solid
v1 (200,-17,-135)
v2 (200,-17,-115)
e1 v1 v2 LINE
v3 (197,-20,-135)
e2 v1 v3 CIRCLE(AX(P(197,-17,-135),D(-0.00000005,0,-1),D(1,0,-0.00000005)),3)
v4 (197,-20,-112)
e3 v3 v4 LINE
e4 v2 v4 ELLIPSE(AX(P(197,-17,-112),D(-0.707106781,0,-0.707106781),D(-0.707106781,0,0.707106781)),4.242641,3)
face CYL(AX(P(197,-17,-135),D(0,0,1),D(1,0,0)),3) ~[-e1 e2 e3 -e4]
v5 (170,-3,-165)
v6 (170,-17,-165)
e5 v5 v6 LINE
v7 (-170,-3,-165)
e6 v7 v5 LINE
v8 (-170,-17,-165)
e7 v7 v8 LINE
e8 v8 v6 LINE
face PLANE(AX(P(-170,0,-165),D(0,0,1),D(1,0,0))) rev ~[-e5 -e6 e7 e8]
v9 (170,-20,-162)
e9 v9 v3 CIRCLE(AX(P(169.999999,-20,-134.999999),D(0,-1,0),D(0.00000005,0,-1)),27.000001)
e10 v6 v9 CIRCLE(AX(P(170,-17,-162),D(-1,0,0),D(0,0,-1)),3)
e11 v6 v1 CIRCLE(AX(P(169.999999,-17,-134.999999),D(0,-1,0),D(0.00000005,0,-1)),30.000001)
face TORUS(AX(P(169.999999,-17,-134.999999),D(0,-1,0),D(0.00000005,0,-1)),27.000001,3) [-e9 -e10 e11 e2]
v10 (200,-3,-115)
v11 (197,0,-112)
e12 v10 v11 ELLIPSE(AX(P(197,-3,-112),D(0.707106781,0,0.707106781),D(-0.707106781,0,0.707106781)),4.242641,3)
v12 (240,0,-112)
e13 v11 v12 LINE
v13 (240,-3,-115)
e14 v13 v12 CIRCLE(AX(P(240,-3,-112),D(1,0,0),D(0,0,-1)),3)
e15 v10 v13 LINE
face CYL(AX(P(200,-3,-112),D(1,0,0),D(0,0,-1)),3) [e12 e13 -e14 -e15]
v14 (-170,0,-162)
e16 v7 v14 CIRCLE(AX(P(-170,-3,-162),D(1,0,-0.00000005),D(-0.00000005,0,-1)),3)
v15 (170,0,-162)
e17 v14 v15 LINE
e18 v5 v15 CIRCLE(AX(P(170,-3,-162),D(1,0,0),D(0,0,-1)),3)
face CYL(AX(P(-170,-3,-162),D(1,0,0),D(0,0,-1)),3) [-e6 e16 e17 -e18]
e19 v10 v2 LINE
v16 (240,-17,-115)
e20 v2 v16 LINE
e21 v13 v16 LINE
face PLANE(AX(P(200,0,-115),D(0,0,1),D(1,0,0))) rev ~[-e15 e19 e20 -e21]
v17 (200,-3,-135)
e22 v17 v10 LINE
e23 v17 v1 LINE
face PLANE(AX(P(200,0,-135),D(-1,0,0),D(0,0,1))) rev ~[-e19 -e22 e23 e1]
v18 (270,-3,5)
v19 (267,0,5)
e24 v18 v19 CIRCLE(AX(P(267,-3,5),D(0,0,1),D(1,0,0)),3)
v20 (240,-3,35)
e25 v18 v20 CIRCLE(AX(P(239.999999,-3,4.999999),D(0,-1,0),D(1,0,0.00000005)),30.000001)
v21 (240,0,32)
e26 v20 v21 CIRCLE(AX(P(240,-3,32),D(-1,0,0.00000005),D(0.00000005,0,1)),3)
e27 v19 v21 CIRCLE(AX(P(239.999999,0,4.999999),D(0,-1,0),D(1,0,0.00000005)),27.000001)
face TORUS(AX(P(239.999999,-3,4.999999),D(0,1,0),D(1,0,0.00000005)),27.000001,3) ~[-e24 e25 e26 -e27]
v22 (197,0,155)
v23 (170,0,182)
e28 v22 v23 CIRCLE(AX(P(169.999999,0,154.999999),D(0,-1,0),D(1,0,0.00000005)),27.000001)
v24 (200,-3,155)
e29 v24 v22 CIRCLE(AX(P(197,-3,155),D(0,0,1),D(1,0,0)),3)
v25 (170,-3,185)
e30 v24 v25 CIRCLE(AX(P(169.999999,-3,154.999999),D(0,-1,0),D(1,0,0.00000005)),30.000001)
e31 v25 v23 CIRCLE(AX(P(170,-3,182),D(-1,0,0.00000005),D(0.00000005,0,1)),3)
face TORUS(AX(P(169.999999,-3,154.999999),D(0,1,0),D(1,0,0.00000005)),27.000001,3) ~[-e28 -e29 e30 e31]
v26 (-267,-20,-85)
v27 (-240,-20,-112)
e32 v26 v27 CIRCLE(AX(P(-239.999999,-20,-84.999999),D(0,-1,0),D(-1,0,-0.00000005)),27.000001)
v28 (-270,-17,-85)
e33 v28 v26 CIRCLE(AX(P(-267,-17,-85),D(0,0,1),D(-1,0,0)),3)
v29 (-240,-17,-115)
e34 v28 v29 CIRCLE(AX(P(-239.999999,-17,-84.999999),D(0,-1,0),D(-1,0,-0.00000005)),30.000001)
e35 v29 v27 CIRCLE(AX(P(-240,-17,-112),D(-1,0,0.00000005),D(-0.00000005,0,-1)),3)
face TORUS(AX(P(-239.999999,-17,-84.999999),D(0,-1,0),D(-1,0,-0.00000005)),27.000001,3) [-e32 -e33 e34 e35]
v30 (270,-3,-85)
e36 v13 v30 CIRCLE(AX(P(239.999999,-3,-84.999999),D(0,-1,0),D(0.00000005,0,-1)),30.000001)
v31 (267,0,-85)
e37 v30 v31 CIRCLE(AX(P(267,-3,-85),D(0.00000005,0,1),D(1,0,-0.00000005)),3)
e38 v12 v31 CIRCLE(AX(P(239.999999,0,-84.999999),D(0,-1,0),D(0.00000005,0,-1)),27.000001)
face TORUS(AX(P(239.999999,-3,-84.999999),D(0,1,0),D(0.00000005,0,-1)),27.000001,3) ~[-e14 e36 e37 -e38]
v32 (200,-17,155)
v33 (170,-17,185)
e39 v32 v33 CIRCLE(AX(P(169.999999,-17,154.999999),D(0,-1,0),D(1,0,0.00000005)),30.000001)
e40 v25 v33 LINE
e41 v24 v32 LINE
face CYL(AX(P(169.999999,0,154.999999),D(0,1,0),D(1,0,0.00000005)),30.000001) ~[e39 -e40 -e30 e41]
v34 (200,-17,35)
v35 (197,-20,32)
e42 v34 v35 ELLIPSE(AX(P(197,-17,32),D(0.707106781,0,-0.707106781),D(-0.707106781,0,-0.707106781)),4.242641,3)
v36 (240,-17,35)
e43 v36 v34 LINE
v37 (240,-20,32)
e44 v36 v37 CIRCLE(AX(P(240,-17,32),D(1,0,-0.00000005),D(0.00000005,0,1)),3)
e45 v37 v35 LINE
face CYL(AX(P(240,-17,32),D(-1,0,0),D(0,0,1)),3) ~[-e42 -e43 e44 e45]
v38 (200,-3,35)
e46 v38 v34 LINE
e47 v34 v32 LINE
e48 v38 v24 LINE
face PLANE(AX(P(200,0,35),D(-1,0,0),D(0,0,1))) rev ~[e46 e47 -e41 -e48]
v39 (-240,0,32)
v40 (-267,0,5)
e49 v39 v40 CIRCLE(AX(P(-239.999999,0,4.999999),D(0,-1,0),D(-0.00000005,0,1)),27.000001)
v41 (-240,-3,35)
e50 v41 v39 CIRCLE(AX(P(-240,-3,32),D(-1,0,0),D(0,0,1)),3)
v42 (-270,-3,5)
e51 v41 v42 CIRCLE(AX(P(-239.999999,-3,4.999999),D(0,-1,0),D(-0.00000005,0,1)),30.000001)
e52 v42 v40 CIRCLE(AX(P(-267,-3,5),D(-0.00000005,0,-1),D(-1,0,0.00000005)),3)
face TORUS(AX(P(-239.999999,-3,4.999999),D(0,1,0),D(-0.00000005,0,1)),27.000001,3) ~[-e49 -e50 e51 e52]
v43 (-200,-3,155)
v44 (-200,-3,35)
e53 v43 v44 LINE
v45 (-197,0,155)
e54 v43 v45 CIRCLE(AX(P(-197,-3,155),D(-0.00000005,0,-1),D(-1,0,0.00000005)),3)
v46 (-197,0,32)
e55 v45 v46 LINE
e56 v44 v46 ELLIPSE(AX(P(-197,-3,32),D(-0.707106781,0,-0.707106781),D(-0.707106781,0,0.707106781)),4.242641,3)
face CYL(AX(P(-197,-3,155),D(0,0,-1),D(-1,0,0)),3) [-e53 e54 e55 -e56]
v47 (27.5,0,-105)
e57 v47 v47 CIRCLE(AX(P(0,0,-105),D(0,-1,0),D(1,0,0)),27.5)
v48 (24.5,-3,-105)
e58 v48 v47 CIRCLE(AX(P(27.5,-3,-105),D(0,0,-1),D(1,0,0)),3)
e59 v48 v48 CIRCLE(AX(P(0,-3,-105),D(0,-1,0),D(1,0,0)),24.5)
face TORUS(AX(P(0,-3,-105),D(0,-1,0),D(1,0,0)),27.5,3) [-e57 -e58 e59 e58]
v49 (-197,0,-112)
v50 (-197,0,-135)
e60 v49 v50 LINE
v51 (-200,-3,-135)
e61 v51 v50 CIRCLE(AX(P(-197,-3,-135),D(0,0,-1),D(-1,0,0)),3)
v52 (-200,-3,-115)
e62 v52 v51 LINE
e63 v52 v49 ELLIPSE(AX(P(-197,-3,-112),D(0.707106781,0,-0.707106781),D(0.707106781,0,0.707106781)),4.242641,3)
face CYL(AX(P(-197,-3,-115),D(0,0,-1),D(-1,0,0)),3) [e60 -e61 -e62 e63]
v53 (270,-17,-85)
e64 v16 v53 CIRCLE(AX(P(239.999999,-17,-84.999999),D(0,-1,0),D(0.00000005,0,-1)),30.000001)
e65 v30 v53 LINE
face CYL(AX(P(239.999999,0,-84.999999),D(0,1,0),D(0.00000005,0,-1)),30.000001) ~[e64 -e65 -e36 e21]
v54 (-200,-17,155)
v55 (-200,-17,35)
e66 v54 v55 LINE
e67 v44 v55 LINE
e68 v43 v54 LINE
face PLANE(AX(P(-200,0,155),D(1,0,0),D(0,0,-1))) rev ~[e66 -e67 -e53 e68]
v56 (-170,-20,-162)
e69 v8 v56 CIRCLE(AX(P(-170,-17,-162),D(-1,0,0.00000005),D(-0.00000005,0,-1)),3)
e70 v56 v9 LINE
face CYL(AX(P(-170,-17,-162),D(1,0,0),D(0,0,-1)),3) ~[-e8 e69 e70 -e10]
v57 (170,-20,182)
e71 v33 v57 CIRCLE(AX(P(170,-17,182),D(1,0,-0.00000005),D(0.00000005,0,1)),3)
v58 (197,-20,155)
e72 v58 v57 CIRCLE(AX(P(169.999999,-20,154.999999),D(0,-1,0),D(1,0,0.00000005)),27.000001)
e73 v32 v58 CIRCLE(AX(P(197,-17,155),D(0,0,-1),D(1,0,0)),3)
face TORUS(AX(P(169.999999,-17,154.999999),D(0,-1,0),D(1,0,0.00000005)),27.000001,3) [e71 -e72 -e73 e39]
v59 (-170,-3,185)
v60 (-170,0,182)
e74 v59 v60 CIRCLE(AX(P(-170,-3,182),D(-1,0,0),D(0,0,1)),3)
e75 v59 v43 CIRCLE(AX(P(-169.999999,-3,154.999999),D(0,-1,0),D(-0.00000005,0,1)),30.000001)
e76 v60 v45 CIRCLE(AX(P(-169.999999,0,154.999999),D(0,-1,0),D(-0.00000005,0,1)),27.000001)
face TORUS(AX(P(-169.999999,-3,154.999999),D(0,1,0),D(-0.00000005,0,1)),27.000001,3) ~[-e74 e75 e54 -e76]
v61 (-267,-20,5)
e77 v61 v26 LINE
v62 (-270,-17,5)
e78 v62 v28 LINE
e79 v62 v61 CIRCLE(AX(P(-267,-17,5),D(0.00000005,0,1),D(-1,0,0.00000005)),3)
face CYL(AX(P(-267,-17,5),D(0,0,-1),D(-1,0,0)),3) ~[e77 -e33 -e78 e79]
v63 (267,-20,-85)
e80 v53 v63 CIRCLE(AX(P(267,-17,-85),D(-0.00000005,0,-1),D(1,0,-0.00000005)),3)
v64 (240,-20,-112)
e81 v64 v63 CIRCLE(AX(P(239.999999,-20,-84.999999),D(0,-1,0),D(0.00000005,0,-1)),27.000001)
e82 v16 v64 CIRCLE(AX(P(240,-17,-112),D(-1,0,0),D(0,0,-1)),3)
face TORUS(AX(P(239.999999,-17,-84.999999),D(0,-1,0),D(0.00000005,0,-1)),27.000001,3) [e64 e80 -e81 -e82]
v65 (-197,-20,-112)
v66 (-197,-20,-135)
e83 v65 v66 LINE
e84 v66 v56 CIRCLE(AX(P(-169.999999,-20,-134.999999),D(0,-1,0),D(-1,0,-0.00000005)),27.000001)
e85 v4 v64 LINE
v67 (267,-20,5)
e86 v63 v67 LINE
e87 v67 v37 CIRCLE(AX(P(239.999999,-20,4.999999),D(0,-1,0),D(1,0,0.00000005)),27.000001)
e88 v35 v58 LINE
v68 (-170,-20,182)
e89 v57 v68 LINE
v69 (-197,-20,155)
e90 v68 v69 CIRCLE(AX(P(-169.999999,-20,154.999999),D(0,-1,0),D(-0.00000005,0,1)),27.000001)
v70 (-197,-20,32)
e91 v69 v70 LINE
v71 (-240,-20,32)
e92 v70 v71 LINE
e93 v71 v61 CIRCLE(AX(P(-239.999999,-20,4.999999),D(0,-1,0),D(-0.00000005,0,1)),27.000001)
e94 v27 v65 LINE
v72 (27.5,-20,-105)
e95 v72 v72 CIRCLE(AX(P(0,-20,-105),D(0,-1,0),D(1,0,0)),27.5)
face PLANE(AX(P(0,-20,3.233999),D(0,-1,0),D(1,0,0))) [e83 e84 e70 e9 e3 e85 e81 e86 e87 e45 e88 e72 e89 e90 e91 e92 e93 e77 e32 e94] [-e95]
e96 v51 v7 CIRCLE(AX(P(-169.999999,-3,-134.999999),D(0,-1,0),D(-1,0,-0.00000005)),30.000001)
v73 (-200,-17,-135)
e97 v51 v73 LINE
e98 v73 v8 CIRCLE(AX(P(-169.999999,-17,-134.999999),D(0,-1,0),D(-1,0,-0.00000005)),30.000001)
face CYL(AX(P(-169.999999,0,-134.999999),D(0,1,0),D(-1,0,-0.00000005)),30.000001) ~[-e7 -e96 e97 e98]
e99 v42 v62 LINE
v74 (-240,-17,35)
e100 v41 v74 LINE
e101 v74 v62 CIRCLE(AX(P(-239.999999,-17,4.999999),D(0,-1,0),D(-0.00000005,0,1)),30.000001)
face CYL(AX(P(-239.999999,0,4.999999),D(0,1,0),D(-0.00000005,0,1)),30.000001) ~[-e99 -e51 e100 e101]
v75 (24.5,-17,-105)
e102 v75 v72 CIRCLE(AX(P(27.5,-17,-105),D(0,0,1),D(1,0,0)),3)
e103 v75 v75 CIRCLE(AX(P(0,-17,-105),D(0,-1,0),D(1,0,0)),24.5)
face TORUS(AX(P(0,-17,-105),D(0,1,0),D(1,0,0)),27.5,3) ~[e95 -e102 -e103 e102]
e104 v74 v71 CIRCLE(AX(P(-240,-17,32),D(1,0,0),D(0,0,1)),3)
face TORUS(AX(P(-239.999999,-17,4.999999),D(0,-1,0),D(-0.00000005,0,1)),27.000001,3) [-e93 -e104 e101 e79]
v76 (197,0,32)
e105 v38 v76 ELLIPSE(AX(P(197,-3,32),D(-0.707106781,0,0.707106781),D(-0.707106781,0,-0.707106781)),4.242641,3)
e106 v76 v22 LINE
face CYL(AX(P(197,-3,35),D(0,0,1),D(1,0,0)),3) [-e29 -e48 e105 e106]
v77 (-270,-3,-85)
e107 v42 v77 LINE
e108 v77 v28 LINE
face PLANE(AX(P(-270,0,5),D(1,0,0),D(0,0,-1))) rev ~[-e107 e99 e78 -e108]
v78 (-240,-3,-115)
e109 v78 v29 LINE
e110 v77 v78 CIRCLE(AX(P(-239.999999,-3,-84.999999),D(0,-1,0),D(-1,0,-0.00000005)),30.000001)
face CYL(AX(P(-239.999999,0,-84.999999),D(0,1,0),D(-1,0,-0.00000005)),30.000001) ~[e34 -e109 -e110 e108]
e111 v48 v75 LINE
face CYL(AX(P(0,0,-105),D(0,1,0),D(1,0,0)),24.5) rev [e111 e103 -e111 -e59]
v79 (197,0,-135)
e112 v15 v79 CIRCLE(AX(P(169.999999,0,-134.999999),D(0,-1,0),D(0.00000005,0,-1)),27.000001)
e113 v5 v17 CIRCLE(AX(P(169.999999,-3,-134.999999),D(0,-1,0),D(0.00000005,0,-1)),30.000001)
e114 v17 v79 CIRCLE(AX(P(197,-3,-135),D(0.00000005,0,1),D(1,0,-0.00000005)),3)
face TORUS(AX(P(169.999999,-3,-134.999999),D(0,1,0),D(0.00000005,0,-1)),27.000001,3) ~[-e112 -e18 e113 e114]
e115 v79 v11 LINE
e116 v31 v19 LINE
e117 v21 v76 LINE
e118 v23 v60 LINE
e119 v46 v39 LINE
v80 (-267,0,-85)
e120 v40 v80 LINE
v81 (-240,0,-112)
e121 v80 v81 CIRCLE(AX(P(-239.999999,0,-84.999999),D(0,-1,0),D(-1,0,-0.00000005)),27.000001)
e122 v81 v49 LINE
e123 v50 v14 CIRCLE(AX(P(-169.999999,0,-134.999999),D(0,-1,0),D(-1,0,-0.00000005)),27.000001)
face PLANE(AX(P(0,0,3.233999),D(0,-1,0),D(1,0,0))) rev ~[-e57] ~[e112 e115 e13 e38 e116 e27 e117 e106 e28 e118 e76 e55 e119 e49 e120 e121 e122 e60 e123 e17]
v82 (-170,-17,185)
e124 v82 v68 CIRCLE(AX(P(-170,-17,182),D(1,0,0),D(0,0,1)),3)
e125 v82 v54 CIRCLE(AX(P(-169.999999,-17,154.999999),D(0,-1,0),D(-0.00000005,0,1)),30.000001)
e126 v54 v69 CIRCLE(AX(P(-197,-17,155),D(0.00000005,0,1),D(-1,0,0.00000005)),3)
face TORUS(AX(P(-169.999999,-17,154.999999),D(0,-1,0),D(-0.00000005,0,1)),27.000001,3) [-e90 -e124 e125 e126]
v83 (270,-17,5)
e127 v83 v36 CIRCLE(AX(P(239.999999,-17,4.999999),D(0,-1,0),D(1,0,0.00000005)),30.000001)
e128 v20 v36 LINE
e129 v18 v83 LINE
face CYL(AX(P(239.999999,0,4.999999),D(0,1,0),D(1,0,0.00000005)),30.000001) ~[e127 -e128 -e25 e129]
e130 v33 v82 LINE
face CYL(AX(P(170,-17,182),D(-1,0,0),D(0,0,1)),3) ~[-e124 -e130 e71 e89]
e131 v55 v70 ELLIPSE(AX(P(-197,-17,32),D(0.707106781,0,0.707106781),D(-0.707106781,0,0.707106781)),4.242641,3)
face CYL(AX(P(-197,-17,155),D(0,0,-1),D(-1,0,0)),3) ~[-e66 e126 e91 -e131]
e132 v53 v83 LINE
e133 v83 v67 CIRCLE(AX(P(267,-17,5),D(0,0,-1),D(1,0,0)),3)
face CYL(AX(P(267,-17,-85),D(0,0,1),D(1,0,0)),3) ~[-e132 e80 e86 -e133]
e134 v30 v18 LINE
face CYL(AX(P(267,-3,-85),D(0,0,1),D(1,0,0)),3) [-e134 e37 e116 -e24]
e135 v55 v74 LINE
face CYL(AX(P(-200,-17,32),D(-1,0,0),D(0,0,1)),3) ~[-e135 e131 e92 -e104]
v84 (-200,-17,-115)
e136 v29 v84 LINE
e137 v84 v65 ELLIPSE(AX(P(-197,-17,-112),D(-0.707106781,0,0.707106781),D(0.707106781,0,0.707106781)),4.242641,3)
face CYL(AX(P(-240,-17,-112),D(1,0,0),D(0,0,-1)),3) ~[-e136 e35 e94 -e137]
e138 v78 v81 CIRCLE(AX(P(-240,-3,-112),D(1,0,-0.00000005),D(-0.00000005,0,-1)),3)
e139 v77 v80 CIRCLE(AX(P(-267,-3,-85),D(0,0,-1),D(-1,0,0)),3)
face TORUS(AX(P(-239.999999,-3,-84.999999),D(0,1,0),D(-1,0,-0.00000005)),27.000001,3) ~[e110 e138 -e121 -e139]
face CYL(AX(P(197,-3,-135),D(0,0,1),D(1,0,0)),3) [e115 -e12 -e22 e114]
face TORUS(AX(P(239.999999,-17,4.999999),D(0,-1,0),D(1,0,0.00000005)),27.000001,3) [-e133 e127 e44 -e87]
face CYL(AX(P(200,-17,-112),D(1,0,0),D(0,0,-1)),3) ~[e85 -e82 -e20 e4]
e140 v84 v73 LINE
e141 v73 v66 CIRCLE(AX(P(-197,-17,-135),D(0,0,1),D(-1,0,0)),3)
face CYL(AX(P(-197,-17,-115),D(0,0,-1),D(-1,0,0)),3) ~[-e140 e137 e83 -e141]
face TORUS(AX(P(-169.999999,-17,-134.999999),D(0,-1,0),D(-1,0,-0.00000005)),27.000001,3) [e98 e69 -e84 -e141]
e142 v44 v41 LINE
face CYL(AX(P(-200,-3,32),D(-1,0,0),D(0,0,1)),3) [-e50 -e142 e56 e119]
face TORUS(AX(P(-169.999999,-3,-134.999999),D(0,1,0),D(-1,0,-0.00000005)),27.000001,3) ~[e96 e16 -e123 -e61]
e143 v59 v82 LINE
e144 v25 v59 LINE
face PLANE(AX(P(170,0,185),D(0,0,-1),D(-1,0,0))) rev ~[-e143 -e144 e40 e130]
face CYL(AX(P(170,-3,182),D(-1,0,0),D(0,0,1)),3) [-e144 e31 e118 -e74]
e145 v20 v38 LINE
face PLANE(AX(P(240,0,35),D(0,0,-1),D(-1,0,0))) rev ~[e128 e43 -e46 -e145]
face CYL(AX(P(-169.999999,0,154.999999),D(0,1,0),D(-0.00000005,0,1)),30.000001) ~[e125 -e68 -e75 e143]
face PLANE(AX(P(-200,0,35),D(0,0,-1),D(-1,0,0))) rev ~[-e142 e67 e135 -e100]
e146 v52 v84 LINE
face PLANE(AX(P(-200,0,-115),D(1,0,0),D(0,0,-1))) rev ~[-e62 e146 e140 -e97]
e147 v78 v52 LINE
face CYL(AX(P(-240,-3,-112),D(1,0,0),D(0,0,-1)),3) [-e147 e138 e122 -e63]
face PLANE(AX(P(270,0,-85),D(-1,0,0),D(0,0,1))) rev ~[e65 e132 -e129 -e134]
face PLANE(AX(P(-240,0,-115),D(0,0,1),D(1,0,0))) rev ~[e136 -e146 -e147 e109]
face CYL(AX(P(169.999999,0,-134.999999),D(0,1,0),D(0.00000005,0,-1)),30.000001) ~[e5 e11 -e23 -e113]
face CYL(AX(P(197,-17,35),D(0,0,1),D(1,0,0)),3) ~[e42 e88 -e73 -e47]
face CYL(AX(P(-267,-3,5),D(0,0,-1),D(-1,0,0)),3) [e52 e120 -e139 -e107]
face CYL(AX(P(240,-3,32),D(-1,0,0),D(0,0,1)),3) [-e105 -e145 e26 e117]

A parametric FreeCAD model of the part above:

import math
import FreeCAD as App
import Part
import Sketcher

V = App.Vector


def edges_at(feature, points):
    """Names of the edges that pass closest to the given points."""
    edges = feature.Shape.Edges
    near = lambda p: min(range(len(edges)), key=lambda i: edges[i].distToShape(Part.Vertex(*p))[0])
    return sorted({f"Edge{near(p) + 1}" for p in points})

doc = App.newDocument("Part")
body = doc.addObject("PartDesign::Body", "Body")

# Sketch on XZ plane
sketch1 = body.newObject("Sketcher::SketchObject", "Sketch")
sketch1.AttachmentSupport = (doc.getObject("XZ_Plane"), [""])
sketch1.MapMode = "FlatFace"
sketch1.addGeometry([
    Part.ArcOfCircle(Part.Circle(V(169.999999, -134.999999, 0), V(0, 0, 1), 30.000001), math.radians(-89.999997), math.radians(-0.000003)),  # 0
    Part.LineSegment(V(200, -135, 0), V(200, -115, 0)),  # 1
    Part.LineSegment(V(200, -115, 0), V(240, -115, 0)),  # 2
    Part.ArcOfCircle(Part.Circle(V(239.999999, -84.999999, 0), V(0, 0, 1), 30.000001), math.radians(-89.999997), math.radians(-0.000003)),  # 3
    Part.LineSegment(V(270, -85, 0), V(270, 5, 0)),  # 4
    Part.ArcOfCircle(Part.Circle(V(239.999999, 4.999999, 0), V(0, 0, 1), 30.000001), math.radians(0.000003), math.radians(89.999997)),  # 5
    Part.LineSegment(V(240, 35, 0), V(200, 35, 0)),  # 6
    Part.LineSegment(V(200, 35, 0), V(200, 155, 0)),  # 7
    Part.ArcOfCircle(Part.Circle(V(169.999999, 154.999999, 0), V(0, 0, 1), 30.000001), math.radians(0.000003), math.radians(89.999997)),  # 8
    Part.LineSegment(V(170, 185, 0), V(-170, 185, 0)),  # 9
    Part.ArcOfCircle(Part.Circle(V(-169.999999, 154.999999, 0), V(0, 0, 1), 30.000001), math.radians(90.000003), math.radians(179.999997)),  # 10
    Part.LineSegment(V(-200, 155, 0), V(-200, 35, 0)),  # 11
    Part.LineSegment(V(-200, 35, 0), V(-240, 35, 0)),  # 12
    Part.ArcOfCircle(Part.Circle(V(-239.999999, 4.999999, 0), V(0, 0, 1), 30.000001), math.radians(90.000003), math.radians(179.999997)),  # 13
    Part.LineSegment(V(-270, 5, 0), V(-270, -85, 0)),  # 14
    Part.ArcOfCircle(Part.Circle(V(-239.999999, -84.999999, 0), V(0, 0, 1), 30.000001), math.radians(-179.999997), math.radians(-90.000003)),  # 15
    Part.LineSegment(V(-240, -115, 0), V(-200, -115, 0)),  # 16
    Part.LineSegment(V(-200, -115, 0), V(-200, -135, 0)),  # 17
    Part.ArcOfCircle(Part.Circle(V(-169.999999, -134.999999, 0), V(0, 0, 1), 30.000001), math.radians(-179.999997), math.radians(-90.000003)),  # 18
    Part.LineSegment(V(-170, -165, 0), V(170, -165, 0)),  # 19
    Part.Circle(V(0, -105, 0), V(0, 0, 1), 24.5),  # 20
], False)
sketch1.addConstraint([
    Sketcher.Constraint("Tangent", 0, 2, 1, 1),
    Sketcher.Constraint("Coincident", 1, 2, 2, 1),
    Sketcher.Constraint("Tangent", 2, 2, 3, 1),
    Sketcher.Constraint("Tangent", 3, 2, 4, 1),
    Sketcher.Constraint("Tangent", 4, 2, 5, 1),
    Sketcher.Constraint("Tangent", 5, 2, 6, 1),
    Sketcher.Constraint("Coincident", 6, 2, 7, 1),
    Sketcher.Constraint("Tangent", 7, 2, 8, 1),
    Sketcher.Constraint("Tangent", 8, 2, 9, 1),
    Sketcher.Constraint("Tangent", 9, 2, 10, 1),
    Sketcher.Constraint("Tangent", 10, 2, 11, 1),
    Sketcher.Constraint("Coincident", 11, 2, 12, 1),
    Sketcher.Constraint("Tangent", 12, 2, 13, 1),
    Sketcher.Constraint("Tangent", 13, 2, 14, 1),
    Sketcher.Constraint("Tangent", 14, 2, 15, 1),
    Sketcher.Constraint("Tangent", 15, 2, 16, 1),
    Sketcher.Constraint("Coincident", 16, 2, 17, 1),
    Sketcher.Constraint("Tangent", 17, 2, 18, 1),
    Sketcher.Constraint("Tangent", 18, 2, 19, 1),
    Sketcher.Constraint("Tangent", 19, 2, 0, 1),
    Sketcher.Constraint("Vertical", 1),
    Sketcher.Constraint("Horizontal", 2),
    Sketcher.Constraint("Vertical", 4),
    Sketcher.Constraint("Horizontal", 6),
    Sketcher.Constraint("Vertical", 7),
    Sketcher.Constraint("Horizontal", 9),
    Sketcher.Constraint("Vertical", 11),
    Sketcher.Constraint("Horizontal", 12),
    Sketcher.Constraint("Vertical", 14),
    Sketcher.Constraint("Horizontal", 16),
    Sketcher.Constraint("Vertical", 17),
    Sketcher.Constraint("Horizontal", 19),
    Sketcher.Constraint("Equal", 0, 3),
    Sketcher.Constraint("Equal", 3, 5),
    Sketcher.Constraint("Equal", 5, 8),
    Sketcher.Constraint("Equal", 8, 10),
    Sketcher.Constraint("Equal", 10, 13),
    Sketcher.Constraint("Equal", 13, 15),
    Sketcher.Constraint("Equal", 15, 18),
    Sketcher.Constraint("Symmetric", 5, 3, 13, 3, -2),
    Sketcher.Constraint("Symmetric", 1, 2, 16, 2, -2),
    Sketcher.Constraint("PointOnObject", 20, 3, -2),
    Sketcher.Constraint("Vertical", 0, 3, 8, 3),
    Sketcher.Constraint("Vertical", 10, 3, 18, 3),
    Sketcher.Constraint("Diameter", 20, 49.0),
    Sketcher.Constraint("Radius", 0, 30.000001),
    Sketcher.Constraint("DistanceX", 2, 1, 2, 2, 40.0),
    Sketcher.Constraint("DistanceX", 9, 2, 9, 1, 340.0),
    Sketcher.Constraint("DistanceY", 1, 1, 1, 2, 20.0),
    Sketcher.Constraint("DistanceY", 4, 1, 4, 2, 90.0),
    Sketcher.Constraint("DistanceY", 7, 1, 7, 2, 120.0),
    Sketcher.Constraint("DistanceY", 0, 3, -1, 1, 134.999999),
    Sketcher.Constraint("DistanceY", 20, 3, -1, 1, 105.0),
])
pad1 = body.newObject("PartDesign::Pad", "Pad")
pad1.Profile = sketch1
pad1.Length = 20
doc.recompute()

fillet = body.newObject("PartDesign::Fillet", "Fillet")
fillet.Base = (pad1, edges_at(pad1, [
    (-261.213, 0, 26.213),
    (-270, 0, -40),
    (-261.213, 0, -106.213),
    (-220, 0, -115),
    (-200, 0, -125),
    (-191.213, 0, -156.213),
    (0, 0, -165),
    (191.213, 0, -156.213),
    (200, 0, -125),
    (220, 0, -115),
    (261.213, 0, -106.213),
    (270, 0, -40),
    (261.213, 0, 26.213),
    (220, 0, 35),
    (200, 0, 95),
    (191.213, 0, 176.213),
    (0, 0, 185),
    (-191.213, 0, 176.213),
    (-200, 0, 95),
    (-220, 0, 35),
    (-24.5, 0, -105),
    (-261.213, -20, 26.213),
    (-270, -20, -40),
    (-261.213, -20, -106.213),
    (-220, -20, -115),
    (-200, -20, -125),
    (-191.213, -20, -156.213),
    (0, -20, -165),
    (191.213, -20, -156.213),
    (200, -20, -125),
    (220, -20, -115),
    (261.213, -20, -106.213),
    (270, -20, -40),
    (261.213, -20, 26.213),
    (220, -20, 35),
    (200, -20, 95),
    (191.213, -20, 176.213),
    (0, -20, 185),
    (-191.213, -20, 176.213),
    (-200, -20, 95),
    (-220, -20, 35),
    (-24.5, -20, -105),
]))
fillet.Radius = 3

doc.recompute()
